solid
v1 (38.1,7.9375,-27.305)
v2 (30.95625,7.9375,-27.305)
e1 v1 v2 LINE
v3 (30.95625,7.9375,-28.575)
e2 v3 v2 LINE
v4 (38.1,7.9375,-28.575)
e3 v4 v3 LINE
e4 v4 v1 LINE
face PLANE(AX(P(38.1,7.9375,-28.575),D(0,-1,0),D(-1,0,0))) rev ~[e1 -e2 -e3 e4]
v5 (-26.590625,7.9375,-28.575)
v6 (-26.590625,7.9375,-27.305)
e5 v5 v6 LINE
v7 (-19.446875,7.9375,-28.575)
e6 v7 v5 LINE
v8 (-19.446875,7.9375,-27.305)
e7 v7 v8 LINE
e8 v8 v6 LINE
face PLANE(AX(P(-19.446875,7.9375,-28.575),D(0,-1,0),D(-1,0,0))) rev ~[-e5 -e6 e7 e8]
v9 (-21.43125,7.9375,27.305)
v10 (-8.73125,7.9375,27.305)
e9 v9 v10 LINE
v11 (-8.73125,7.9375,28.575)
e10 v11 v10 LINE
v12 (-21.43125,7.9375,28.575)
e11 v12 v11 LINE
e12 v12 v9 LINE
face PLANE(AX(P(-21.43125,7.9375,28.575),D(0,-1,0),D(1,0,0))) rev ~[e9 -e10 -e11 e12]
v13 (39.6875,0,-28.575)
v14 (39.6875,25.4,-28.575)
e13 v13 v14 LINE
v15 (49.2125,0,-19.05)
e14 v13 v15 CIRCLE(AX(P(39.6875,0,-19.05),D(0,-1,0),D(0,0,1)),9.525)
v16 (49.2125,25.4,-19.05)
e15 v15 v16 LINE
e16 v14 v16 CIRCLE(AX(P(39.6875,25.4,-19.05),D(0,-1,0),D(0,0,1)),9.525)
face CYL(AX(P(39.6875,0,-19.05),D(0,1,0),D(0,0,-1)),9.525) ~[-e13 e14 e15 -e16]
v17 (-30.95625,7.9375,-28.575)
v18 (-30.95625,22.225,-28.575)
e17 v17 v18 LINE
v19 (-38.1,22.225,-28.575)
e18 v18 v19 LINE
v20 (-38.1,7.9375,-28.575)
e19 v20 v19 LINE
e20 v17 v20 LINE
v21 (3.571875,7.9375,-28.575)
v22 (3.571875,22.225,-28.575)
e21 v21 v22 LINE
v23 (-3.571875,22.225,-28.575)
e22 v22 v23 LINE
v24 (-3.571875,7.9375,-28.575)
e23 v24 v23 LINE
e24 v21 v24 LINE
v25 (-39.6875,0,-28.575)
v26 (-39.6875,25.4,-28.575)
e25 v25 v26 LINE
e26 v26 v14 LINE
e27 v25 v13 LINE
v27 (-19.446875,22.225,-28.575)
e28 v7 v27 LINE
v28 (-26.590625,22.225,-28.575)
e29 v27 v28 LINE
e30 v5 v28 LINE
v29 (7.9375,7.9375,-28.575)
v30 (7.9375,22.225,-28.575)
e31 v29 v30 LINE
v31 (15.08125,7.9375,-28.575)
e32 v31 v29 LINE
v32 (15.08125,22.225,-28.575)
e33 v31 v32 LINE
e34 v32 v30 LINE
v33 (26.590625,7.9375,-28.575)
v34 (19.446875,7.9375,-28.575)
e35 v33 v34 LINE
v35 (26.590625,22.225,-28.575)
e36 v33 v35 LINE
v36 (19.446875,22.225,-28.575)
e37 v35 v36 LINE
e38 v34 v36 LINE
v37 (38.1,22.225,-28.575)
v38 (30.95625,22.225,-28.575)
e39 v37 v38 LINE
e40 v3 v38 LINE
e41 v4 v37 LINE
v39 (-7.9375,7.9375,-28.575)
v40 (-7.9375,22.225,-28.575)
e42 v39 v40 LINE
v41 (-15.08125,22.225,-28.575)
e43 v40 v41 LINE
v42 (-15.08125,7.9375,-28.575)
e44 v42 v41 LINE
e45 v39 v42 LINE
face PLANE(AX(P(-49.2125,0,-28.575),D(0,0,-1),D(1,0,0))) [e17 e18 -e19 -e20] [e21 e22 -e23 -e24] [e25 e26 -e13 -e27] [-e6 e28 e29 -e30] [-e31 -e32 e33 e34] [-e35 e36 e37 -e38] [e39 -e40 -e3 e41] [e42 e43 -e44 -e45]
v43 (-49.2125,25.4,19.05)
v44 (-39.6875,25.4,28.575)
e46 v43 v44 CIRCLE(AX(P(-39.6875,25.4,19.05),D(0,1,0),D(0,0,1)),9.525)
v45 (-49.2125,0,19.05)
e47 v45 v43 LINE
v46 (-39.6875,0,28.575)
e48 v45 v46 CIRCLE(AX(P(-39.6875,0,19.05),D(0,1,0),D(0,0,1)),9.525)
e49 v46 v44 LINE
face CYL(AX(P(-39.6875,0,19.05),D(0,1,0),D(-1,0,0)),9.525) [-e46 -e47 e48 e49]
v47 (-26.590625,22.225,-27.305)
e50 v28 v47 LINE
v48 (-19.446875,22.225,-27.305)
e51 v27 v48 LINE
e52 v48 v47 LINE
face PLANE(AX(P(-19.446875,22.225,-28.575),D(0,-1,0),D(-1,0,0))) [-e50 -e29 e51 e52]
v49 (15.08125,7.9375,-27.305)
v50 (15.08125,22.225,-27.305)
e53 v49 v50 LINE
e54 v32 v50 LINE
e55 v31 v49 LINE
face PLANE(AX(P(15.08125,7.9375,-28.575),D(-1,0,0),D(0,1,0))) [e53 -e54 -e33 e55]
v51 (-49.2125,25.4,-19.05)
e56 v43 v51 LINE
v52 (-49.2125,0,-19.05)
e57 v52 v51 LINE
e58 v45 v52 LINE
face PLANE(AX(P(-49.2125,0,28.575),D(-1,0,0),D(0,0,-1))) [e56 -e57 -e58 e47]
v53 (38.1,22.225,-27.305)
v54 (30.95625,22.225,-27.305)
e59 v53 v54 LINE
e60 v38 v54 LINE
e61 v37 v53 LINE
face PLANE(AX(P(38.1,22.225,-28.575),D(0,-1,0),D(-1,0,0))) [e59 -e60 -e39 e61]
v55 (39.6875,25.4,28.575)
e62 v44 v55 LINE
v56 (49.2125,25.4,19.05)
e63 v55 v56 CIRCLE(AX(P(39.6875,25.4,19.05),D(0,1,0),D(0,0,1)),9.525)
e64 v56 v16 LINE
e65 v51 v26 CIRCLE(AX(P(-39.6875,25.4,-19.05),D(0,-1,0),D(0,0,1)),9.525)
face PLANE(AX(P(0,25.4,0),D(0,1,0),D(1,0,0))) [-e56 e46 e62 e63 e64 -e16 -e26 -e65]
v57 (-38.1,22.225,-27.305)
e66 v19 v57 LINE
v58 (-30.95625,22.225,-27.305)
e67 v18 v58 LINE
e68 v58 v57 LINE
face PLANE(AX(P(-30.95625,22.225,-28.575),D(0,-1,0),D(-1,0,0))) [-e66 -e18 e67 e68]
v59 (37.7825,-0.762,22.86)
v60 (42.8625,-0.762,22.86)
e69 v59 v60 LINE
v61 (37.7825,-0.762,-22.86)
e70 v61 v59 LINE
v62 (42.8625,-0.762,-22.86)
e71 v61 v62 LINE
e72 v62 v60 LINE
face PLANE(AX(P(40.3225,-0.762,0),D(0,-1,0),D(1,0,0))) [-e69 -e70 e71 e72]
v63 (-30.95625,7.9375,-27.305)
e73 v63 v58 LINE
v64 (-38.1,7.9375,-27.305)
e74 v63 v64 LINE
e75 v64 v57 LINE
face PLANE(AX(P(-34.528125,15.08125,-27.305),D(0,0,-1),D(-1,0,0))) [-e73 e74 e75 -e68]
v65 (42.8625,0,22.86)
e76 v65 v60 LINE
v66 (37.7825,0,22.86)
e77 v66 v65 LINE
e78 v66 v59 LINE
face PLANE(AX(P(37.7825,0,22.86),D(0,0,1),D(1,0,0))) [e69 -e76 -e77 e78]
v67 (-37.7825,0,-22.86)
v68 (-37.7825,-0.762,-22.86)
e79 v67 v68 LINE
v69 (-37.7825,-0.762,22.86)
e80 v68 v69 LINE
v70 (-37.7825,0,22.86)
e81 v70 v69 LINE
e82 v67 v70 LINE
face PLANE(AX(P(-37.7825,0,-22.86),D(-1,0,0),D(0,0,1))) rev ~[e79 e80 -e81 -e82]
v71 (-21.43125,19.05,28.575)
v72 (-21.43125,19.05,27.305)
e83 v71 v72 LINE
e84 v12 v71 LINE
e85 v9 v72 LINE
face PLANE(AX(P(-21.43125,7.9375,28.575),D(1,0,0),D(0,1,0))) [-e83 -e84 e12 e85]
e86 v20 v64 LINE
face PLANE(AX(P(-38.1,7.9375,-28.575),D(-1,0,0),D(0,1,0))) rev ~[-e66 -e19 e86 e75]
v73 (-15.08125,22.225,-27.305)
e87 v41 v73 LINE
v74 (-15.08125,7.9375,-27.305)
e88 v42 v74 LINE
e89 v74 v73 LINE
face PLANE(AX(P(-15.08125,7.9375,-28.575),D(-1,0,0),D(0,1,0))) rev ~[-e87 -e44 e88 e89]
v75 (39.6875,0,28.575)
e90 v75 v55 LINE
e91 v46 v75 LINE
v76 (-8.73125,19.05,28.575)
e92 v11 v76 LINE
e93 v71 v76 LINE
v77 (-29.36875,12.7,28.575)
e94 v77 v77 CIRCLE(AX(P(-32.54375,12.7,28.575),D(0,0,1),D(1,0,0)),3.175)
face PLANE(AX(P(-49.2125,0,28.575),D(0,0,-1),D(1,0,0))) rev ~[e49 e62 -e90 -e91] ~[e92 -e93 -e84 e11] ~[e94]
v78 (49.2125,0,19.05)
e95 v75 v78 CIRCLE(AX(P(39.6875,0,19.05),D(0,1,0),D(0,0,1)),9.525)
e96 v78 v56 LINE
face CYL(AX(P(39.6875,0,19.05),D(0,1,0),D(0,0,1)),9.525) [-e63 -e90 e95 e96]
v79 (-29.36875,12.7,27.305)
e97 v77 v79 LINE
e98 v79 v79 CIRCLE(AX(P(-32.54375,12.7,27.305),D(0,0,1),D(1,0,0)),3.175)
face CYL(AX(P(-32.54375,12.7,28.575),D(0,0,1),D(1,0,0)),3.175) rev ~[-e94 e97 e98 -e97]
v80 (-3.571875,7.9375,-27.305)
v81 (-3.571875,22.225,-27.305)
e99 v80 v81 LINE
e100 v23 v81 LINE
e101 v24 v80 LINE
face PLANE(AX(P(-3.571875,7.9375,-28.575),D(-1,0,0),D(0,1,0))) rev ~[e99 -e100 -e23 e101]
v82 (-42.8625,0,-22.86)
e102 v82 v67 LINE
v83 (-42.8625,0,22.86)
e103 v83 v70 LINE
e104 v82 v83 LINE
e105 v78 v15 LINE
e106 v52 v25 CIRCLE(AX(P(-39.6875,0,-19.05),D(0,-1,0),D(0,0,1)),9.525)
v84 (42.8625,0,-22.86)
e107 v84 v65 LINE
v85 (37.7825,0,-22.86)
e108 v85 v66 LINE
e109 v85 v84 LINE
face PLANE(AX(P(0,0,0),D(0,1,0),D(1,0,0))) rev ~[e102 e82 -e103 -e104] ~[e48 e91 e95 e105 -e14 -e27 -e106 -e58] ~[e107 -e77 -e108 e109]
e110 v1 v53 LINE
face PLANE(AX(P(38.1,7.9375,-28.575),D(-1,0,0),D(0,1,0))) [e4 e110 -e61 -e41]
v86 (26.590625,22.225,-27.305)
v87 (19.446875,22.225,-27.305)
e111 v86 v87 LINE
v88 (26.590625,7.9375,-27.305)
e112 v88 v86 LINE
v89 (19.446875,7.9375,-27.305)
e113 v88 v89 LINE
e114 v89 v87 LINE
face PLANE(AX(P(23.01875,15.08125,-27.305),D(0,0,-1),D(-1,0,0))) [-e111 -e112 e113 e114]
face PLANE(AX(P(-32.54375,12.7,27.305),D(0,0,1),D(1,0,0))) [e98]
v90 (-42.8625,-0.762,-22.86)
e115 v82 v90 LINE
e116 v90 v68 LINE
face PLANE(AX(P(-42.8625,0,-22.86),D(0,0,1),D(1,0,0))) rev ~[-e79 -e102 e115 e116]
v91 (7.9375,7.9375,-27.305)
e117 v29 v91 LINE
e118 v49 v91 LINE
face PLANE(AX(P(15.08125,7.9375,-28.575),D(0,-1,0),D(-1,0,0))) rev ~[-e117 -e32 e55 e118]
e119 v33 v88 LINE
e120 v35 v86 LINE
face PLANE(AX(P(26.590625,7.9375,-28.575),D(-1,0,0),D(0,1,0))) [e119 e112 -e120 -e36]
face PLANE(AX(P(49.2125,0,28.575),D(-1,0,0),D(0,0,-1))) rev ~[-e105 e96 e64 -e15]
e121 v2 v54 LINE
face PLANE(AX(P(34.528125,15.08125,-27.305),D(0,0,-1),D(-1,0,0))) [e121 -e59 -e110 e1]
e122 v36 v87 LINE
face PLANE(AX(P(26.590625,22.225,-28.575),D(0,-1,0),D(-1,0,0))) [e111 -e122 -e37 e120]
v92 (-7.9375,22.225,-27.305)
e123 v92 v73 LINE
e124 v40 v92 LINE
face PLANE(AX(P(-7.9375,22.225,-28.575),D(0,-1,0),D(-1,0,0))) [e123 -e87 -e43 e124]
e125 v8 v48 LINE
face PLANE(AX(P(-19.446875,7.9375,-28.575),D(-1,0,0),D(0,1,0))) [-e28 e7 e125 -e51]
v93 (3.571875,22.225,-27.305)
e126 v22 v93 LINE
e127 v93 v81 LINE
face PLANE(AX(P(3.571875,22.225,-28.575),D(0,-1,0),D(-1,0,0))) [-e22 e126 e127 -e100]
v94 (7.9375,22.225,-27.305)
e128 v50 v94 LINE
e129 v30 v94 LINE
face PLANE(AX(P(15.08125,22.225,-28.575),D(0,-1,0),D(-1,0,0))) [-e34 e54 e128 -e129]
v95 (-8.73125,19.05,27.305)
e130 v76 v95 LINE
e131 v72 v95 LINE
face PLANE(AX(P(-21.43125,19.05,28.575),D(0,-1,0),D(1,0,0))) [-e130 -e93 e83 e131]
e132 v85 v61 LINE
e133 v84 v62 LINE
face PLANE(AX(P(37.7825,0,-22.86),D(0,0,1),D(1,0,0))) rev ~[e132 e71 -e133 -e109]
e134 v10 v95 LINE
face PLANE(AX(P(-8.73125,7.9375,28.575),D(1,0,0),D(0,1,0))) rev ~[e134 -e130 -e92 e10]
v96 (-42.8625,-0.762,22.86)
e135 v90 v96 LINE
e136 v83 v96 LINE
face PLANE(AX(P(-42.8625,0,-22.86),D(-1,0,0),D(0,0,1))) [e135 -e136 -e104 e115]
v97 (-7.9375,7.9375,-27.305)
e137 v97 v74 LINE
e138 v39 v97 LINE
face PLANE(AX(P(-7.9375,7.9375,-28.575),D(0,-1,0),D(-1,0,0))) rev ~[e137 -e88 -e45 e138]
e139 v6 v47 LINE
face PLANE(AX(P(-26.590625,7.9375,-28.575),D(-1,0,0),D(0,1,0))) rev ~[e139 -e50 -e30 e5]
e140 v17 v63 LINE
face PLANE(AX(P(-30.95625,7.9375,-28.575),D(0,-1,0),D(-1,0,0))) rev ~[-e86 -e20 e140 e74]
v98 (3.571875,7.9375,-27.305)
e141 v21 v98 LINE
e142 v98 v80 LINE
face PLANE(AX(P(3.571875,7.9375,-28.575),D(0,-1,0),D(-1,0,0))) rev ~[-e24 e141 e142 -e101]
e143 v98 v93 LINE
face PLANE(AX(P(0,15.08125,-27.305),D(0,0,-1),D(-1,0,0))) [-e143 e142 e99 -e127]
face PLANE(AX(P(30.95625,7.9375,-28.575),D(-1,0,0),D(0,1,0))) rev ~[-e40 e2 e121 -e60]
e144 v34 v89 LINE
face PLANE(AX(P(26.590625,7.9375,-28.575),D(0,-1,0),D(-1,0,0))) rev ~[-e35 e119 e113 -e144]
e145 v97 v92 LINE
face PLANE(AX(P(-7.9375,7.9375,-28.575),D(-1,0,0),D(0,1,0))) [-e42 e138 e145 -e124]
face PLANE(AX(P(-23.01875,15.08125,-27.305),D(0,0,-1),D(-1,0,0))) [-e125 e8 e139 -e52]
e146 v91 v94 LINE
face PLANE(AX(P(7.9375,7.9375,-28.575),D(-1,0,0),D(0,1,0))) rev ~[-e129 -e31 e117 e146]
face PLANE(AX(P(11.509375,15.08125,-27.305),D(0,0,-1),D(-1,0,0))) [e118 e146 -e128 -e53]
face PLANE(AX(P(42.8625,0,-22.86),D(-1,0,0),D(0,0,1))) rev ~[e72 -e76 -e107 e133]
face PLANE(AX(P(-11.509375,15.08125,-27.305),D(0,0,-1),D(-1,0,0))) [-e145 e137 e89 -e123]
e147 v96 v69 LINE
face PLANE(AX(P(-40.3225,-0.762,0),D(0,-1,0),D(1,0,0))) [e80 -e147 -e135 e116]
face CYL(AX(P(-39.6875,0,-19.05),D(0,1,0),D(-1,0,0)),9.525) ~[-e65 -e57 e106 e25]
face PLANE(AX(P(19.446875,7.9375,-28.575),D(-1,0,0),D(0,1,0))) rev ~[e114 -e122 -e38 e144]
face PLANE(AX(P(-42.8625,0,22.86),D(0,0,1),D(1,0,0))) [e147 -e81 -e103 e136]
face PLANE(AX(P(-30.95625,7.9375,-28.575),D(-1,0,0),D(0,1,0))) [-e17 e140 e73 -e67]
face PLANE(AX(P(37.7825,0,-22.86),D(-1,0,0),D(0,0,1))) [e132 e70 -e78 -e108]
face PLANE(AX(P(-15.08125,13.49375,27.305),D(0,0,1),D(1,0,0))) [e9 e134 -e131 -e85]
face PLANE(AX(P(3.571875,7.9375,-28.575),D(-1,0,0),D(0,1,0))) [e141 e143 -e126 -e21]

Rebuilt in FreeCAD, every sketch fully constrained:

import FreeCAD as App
import Part
import Sketcher
from FreeCAD import Vector
Q = App.Units.Quantity


def edges_at(feature, points):
    """Names of the edges that pass closest to the given points."""
    edges = feature.Shape.Edges
    near = lambda p: min(range(len(edges)), key=lambda i: edges[i].distToShape(Part.Vertex(*p))[0])
    return sorted({f"Edge{near(p) + 1}" for p in points})

doc = App.newDocument("Part")
body = doc.addObject("PartDesign::Body", "Body")

# Sketch on XZ plane
sketch1 = body.newObject("Sketcher::SketchObject", "Sketch")
sketch1.AttachmentSupport = (doc.getObject("XZ_Plane"), [""])
sketch1.MapMode = "FlatFace"
sketch1.addGeometry([
    Part.LineSegment(Vector(-49, -29, 0), Vector(-49, 29, 0)),
    Part.LineSegment(Vector(-49, 29, 0), Vector(49, 29, 0)),
    Part.LineSegment(Vector(49, 29, 0), Vector(49, -29, 0)),
    Part.LineSegment(Vector(49, -29, 0), Vector(-49, -29, 0)),
], False)
sketch1.addConstraint([
    Sketcher.Constraint("Coincident", 0, 2, 1, 1),
    Sketcher.Constraint("Coincident", 1, 2, 2, 1),
    Sketcher.Constraint("Coincident", 2, 2, 3, 1),
    Sketcher.Constraint("Coincident", 3, 2, 0, 1),
    Sketcher.Constraint("Vertical", 0),
    Sketcher.Constraint("Horizontal", 1),
    Sketcher.Constraint("Vertical", 2),
    Sketcher.Constraint("Horizontal", 3),
    Sketcher.Constraint("Symmetric", 0, 2, 2, 2, -1, 1),
    Sketcher.Constraint("DistanceY", 0, 1, 0, 2, Q("2.25 in")),
    Sketcher.Constraint("DistanceX", 1, 1, 1, 2, Q("3.875 in")),
])
pad1 = body.newObject("PartDesign::Pad", "Pad")
pad1.Profile = sketch1
pad1.Length = Q("1 in")
pad1.Reversed = True

# Sketch on XZ plane
sketch2 = body.newObject("Sketcher::SketchObject", "Sketch001")
sketch2.AttachmentSupport = (doc.getObject("XZ_Plane"), [""])
sketch2.MapMode = "FlatFace"
sketch2.addGeometry([
    Part.LineSegment(Vector(-43, 23, 0), Vector(-43, -23, 0)),  # 0
    Part.LineSegment(Vector(-43, -23, 0), Vector(-38, -23, 0)),  # 1
    Part.LineSegment(Vector(-38, -23, 0), Vector(-38, 23, 0)),  # 2
    Part.LineSegment(Vector(-38, 23, 0), Vector(-43, 23, 0)),  # 3
    Part.LineSegment(Vector(38, 23, 0), Vector(38, -23, 0)),  # 4
    Part.LineSegment(Vector(38, -23, 0), Vector(43, -23, 0)),  # 5
    Part.LineSegment(Vector(43, -23, 0), Vector(43, 23, 0)),  # 6
    Part.LineSegment(Vector(43, 23, 0), Vector(38, 23, 0)),  # 7
], False)
sketch2.addConstraint([
    Sketcher.Constraint("Coincident", 0, 2, 1, 1),
    Sketcher.Constraint("Coincident", 1, 2, 2, 1),
    Sketcher.Constraint("Coincident", 2, 2, 3, 1),
    Sketcher.Constraint("Coincident", 3, 2, 0, 1),
    Sketcher.Constraint("Coincident", 4, 2, 5, 1),
    Sketcher.Constraint("Coincident", 5, 2, 6, 1),
    Sketcher.Constraint("Coincident", 6, 2, 7, 1),
    Sketcher.Constraint("Coincident", 7, 2, 4, 1),
    Sketcher.Constraint("Vertical", 0),
    Sketcher.Constraint("Horizontal", 1),
    Sketcher.Constraint("Vertical", 2),
    Sketcher.Constraint("Horizontal", 3),
    Sketcher.Constraint("Vertical", 4),
    Sketcher.Constraint("Horizontal", 5),
    Sketcher.Constraint("Vertical", 6),
    Sketcher.Constraint("Horizontal", 7),
    Sketcher.Constraint("Symmetric", 2, 2, 4, 2, -1, 1),
    Sketcher.Constraint("Symmetric", 0, 2, 6, 2, -1, 1),
    Sketcher.Constraint("Horizontal", 1, 2, 4, 2),
    Sketcher.Constraint("DistanceX", 1, 1, 1, 2, Q("0.2 in")),
    Sketcher.Constraint("DistanceY", 0, 2, 0, 1, Q("1.8 in")),
    Sketcher.Constraint("DistanceX", 0, 2, -1, 1, Q("1.6875 in")),
])
pad2 = body.newObject("PartDesign::Pad", "Pad001")
pad2.Profile = sketch2
pad2.Length = Q("0.03 in")
doc.recompute()

fillet = body.newObject("PartDesign::Fillet", "Fillet")
fillet.Base = (pad2, edges_at(pad2, [
    (-49.212, 12.7, -28.575),
    (49.212, 12.7, -28.575),
    (49.212, 12.7, 28.575),
    (-49.212, 12.7, 28.575),
]))
fillet.Radius = Q("0.375 in")

# Sketch on XY plane
sketch3 = body.newObject("Sketcher::SketchObject", "Sketch002")
sketch3.AttachmentSupport = (doc.getObject("XY_Plane"), [""])
sketch3.MapMode = "FlatFace"
sketch3.AttachmentOffset = App.Placement(Vector(0, 0, -1.125 * 25.4), App.Rotation())
sketch3.addGeometry([
    Part.LineSegment(Vector(38, 22, 0), Vector(38, 8, 0)),  # 0
    Part.LineSegment(Vector(38, 8, 0), Vector(31, 8, 0)),  # 1
    Part.LineSegment(Vector(31, 8, 0), Vector(31, 22, 0)),  # 2
    Part.LineSegment(Vector(31, 22, 0), Vector(38, 22, 0)),  # 3
    Part.LineSegment(Vector(27, 22, 0), Vector(27, 8, 0)),  # 4
    Part.LineSegment(Vector(27, 8, 0), Vector(19, 8, 0)),  # 5
    Part.LineSegment(Vector(19, 8, 0), Vector(19, 22, 0)),  # 6
    Part.LineSegment(Vector(19, 22, 0), Vector(27, 22, 0)),  # 7
    Part.LineSegment(Vector(15, 22, 0), Vector(15, 8, 0)),  # 8
    Part.LineSegment(Vector(15, 8, 0), Vector(8, 8, 0)),  # 9
    Part.LineSegment(Vector(8, 8, 0), Vector(8, 22, 0)),  # 10
    Part.LineSegment(Vector(8, 22, 0), Vector(15, 22, 0)),  # 11
    Part.LineSegment(Vector(4, 22, 0), Vector(4, 8, 0)),  # 12
    Part.LineSegment(Vector(4, 8, 0), Vector(-4, 8, 0)),  # 13
    Part.LineSegment(Vector(-4, 8, 0), Vector(-4, 22, 0)),  # 14
    Part.LineSegment(Vector(-4, 22, 0), Vector(4, 22, 0)),  # 15
    Part.LineSegment(Vector(-8, 22, 0), Vector(-8, 8, 0)),  # 16
    Part.LineSegment(Vector(-8, 8, 0), Vector(-15, 8, 0)),  # 17
    Part.LineSegment(Vector(-15, 8, 0), Vector(-15, 22, 0)),  # 18
    Part.LineSegment(Vector(-15, 22, 0), Vector(-8, 22, 0)),  # 19
    Part.LineSegment(Vector(-19, 22, 0), Vector(-19, 8, 0)),  # 20
    Part.LineSegment(Vector(-19, 8, 0), Vector(-27, 8, 0)),  # 21
    Part.LineSegment(Vector(-27, 8, 0), Vector(-27, 22, 0)),  # 22
    Part.LineSegment(Vector(-27, 22, 0), Vector(-19, 22, 0)),  # 23
    Part.LineSegment(Vector(-31, 22, 0), Vector(-31, 8, 0)),  # 24
    Part.LineSegment(Vector(-31, 8, 0), Vector(-38, 8, 0)),  # 25
    Part.LineSegment(Vector(-38, 8, 0), Vector(-38, 22, 0)),  # 26
    Part.LineSegment(Vector(-38, 22, 0), Vector(-31, 22, 0)),  # 27
], False)
sketch3.addConstraint([
    Sketcher.Constraint("Coincident", 0, 2, 1, 1),
    Sketcher.Constraint("Coincident", 1, 2, 2, 1),
    Sketcher.Constraint("Coincident", 2, 2, 3, 1),
    Sketcher.Constraint("Coincident", 3, 2, 0, 1),
    Sketcher.Constraint("Coincident", 4, 2, 5, 1),
    Sketcher.Constraint("Coincident", 5, 2, 6, 1),
    Sketcher.Constraint("Coincident", 6, 2, 7, 1),
    Sketcher.Constraint("Coincident", 7, 2, 4, 1),
    Sketcher.Constraint("Coincident", 8, 2, 9, 1),
    Sketcher.Constraint("Coincident", 9, 2, 10, 1),
    Sketcher.Constraint("Coincident", 10, 2, 11, 1),
    Sketcher.Constraint("Coincident", 11, 2, 8, 1),
    Sketcher.Constraint("Coincident", 12, 2, 13, 1),
    Sketcher.Constraint("Coincident", 13, 2, 14, 1),
    Sketcher.Constraint("Coincident", 14, 2, 15, 1),
    Sketcher.Constraint("Coincident", 15, 2, 12, 1),
    Sketcher.Constraint("Coincident", 16, 2, 17, 1),
    Sketcher.Constraint("Coincident", 17, 2, 18, 1),
    Sketcher.Constraint("Coincident", 18, 2, 19, 1),
    Sketcher.Constraint("Coincident", 19, 2, 16, 1),
    Sketcher.Constraint("Coincident", 20, 2, 21, 1),
    Sketcher.Constraint("Coincident", 21, 2, 22, 1),
    Sketcher.Constraint("Coincident", 22, 2, 23, 1),
    Sketcher.Constraint("Coincident", 23, 2, 20, 1),
    Sketcher.Constraint("Coincident", 24, 2, 25, 1),
    Sketcher.Constraint("Coincident", 25, 2, 26, 1),
    Sketcher.Constraint("Coincident", 26, 2, 27, 1),
    Sketcher.Constraint("Coincident", 27, 2, 24, 1),
    Sketcher.Constraint("Vertical", 0),
    Sketcher.Constraint("Horizontal", 1),
    Sketcher.Constraint("Vertical", 2),
    Sketcher.Constraint("Horizontal", 3),
    Sketcher.Constraint("Vertical", 4),
    Sketcher.Constraint("Horizontal", 5),
    Sketcher.Constraint("Vertical", 6),
    Sketcher.Constraint("Horizontal", 7),
    Sketcher.Constraint("Vertical", 8),
    Sketcher.Constraint("Horizontal", 9),
    Sketcher.Constraint("Vertical", 10),
    Sketcher.Constraint("Horizontal", 11),
    Sketcher.Constraint("Vertical", 12),
    Sketcher.Constraint("Horizontal", 13),
    Sketcher.Constraint("Vertical", 14),
    Sketcher.Constraint("Horizontal", 15),
    Sketcher.Constraint("Vertical", 16),
    Sketcher.Constraint("Horizontal", 17),
    Sketcher.Constraint("Vertical", 18),
    Sketcher.Constraint("Horizontal", 19),
    Sketcher.Constraint("Vertical", 20),
    Sketcher.Constraint("Horizontal", 21),
    Sketcher.Constraint("Vertical", 22),
    Sketcher.Constraint("Horizontal", 23),
    Sketcher.Constraint("Vertical", 24),
    Sketcher.Constraint("Horizontal", 25),
    Sketcher.Constraint("Vertical", 26),
    Sketcher.Constraint("Horizontal", 27),
    Sketcher.Constraint("Symmetric", 9, 2, 16, 2, -2),
    Sketcher.Constraint("Symmetric", 11, 2, 18, 2, -2),
    Sketcher.Constraint("Symmetric", 5, 2, 20, 2, -2),
    Sketcher.Constraint("Symmetric", 7, 2, 22, 2, -2),
    Sketcher.Constraint("Symmetric", 1, 2, 24, 2, -2),
    Sketcher.Constraint("Symmetric", 3, 2, 26, 2, -2),
    Sketcher.Constraint("Horizontal", 1, 2, 4, 2),
    Sketcher.Constraint("Horizontal", 3, 2, 6, 2),
    Sketcher.Constraint("Horizontal", 5, 2, 8, 2),
    Sketcher.Constraint("Horizontal", 7, 2, 10, 2),
    Sketcher.Constraint("Horizontal", 9, 2, 12, 2),
    Sketcher.Constraint("Horizontal", 11, 2, 14, 2),
    Sketcher.Constraint("Equal", 3, 5),
    Sketcher.Constraint("Equal", 7, 9),
    Sketcher.Constraint("Equal", 11, 13),
    Sketcher.Constraint("DistanceX", -1, 1, 0, 2, Q("1.5 in")),
    Sketcher.Constraint("DistanceX", 1, 2, 1, 1, Q("0.28125 in")),
    Sketcher.Constraint("DistanceY", 0, 2, 0, 1, Q("0.5625 in")),
    Sketcher.Constraint("DistanceY", -1, 1, 0, 2, Q("0.3125 in")),
    Sketcher.Constraint("DistanceX", -1, 1, 4, 2, Q("1.046875 in")),
    Sketcher.Constraint("DistanceX", -1, 1, 8, 2, Q("0.59375 in")),
    Sketcher.Constraint("DistanceX", -1, 1, 12, 2, Q("0.140625 in")),
])
pocket1 = body.newObject("PartDesign::Pocket", "Pocket")
pocket1.Profile = sketch3
pocket1.Length = Q("0.05 in")
pocket1.Reversed = True

# Sketch on XY plane
sketch4 = body.newObject("Sketcher::SketchObject", "Sketch003")
sketch4.AttachmentSupport = (doc.getObject("XY_Plane"), [""])
sketch4.MapMode = "FlatFace"
sketch4.AttachmentOffset = App.Placement(Vector(0, 0, 1.125 * 25.4), App.Rotation())
sketch4.addGeometry([
    Part.Circle(Vector(-32.5, 12.7, 0), Vector(0, 0, 1), 3.2),  # 0
    Part.LineSegment(Vector(-21.4, 19.1, 0), Vector(-21.4, 7.9, 0)),  # 1
    Part.LineSegment(Vector(-21.4, 7.9, 0), Vector(-8.7, 7.9, 0)),  # 2
    Part.LineSegment(Vector(-8.7, 7.9, 0), Vector(-8.7, 19.1, 0)),  # 3
    Part.LineSegment(Vector(-8.7, 19.1, 0), Vector(-21.4, 19.1, 0)),  # 4
], False)
sketch4.addConstraint([
    Sketcher.Constraint("Coincident", 1, 2, 2, 1),
    Sketcher.Constraint("Coincident", 2, 2, 3, 1),
    Sketcher.Constraint("Coincident", 3, 2, 4, 1),
    Sketcher.Constraint("Coincident", 4, 2, 1, 1),
    Sketcher.Constraint("Vertical", 1),
    Sketcher.Constraint("Horizontal", 2),
    Sketcher.Constraint("Vertical", 3),
    Sketcher.Constraint("Horizontal", 4),
    Sketcher.Constraint("Diameter", 0, Q("0.25 in")),
    Sketcher.Constraint("DistanceX", 2, 1, 2, 2, Q("0.5 in")),
    Sketcher.Constraint("DistanceY", -1, 1, 0, 3, Q("0.5 in")),
    Sketcher.Constraint("DistanceY", 1, 2, 1, 1, Q("0.4375 in")),
    Sketcher.Constraint("DistanceY", -1, 1, 3, 2, Q("0.75 in")),
    Sketcher.Constraint("DistanceX", 0, 3, -1, 1, Q("1.28125 in")),
    Sketcher.Constraint("DistanceX", 1, 2, -1, 1, Q("0.84375 in")),
])
pocket2 = body.newObject("PartDesign::Pocket", "Pocket001")
pocket2.Profile = sketch4
pocket2.Length = Q("0.05 in")

doc.recompute()
